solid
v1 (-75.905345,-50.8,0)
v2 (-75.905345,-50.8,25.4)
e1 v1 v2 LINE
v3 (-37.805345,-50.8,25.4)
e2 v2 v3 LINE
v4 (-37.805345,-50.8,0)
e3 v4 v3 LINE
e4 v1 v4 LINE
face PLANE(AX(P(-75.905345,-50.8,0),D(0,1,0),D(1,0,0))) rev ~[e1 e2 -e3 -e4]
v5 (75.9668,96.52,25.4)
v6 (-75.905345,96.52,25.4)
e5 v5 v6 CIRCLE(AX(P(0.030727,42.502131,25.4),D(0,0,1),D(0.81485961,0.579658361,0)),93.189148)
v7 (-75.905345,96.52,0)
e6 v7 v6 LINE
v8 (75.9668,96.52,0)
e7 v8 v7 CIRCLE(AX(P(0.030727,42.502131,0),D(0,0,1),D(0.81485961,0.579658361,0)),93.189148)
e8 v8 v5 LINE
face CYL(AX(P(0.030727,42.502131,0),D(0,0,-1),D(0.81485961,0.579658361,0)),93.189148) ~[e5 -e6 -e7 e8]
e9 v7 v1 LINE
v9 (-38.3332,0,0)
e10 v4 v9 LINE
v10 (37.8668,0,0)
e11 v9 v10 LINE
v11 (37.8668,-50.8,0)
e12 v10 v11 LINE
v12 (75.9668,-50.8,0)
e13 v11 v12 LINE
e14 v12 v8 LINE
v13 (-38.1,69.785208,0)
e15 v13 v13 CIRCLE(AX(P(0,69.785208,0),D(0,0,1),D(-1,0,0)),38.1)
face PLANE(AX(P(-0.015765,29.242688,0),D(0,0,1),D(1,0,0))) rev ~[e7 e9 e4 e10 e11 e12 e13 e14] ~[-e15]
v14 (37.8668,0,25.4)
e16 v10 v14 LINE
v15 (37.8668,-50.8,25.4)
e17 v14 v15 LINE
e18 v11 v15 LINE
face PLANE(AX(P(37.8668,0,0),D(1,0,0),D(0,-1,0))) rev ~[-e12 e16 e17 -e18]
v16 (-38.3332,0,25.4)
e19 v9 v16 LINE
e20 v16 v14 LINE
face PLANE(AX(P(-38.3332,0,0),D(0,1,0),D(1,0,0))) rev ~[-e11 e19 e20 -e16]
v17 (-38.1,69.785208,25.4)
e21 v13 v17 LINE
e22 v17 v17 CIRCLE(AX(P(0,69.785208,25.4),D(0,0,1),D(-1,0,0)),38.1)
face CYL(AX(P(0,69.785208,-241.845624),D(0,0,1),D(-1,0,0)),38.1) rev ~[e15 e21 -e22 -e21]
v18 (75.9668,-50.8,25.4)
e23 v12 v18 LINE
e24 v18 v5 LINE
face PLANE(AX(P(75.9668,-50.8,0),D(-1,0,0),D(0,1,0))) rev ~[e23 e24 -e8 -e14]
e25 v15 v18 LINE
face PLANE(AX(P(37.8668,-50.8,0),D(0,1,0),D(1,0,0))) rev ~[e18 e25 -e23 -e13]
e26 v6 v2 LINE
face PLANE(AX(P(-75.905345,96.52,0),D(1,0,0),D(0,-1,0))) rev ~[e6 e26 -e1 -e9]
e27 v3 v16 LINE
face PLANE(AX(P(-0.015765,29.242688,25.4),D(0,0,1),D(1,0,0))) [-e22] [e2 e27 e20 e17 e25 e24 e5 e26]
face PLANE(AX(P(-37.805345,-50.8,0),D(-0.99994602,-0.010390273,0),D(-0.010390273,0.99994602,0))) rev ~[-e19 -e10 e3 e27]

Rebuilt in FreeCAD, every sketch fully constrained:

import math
import FreeCAD as App
import Part
import Sketcher
from FreeCAD import Vector
Q = App.Units.Quantity

doc = App.newDocument("Part")
body = doc.addObject("PartDesign::Body", "Body")

sketch1 = body.newObject("Sketcher::SketchObject", "Sketch")
sketch1.AttachmentSupport = (doc.getObject("XY_Plane"), [""])
sketch1.MapMode = "FlatFace"
sketch1.addGeometry([
    Part.LineSegment(Vector(-38, -51, 0), Vector(-38, 0, 0)),
    Part.LineSegment(Vector(-38, 0, 0), Vector(38, 0, 0)),
    Part.LineSegment(Vector(38, 0, 0), Vector(38, -51, 0)),
    Part.LineSegment(Vector(38, -51, 0), Vector(76, -51, 0)),
    Part.LineSegment(Vector(76, -51, 0), Vector(76, 97, 0)),
    Part.ArcOfCircle(Part.Circle(Vector(0, 43, 0), Vector(0, 0, 1), 93), math.radians(35), math.radians(145)),
    Part.LineSegment(Vector(-76, 97, 0), Vector(-76, -51, 0)),
    Part.LineSegment(Vector(-76, -51, 0), Vector(-38, -51, 0)),
], False)
sketch1.addConstraint([
    Sketcher.Constraint("Coincident", 0, 2, 1, 1),
    Sketcher.Constraint("Coincident", 1, 2, 2, 1),
    Sketcher.Constraint("Coincident", 2, 2, 3, 1),
    Sketcher.Constraint("Coincident", 3, 2, 4, 1),
    Sketcher.Constraint("Coincident", 4, 2, 5, 1),
    Sketcher.Constraint("Coincident", 5, 2, 6, 1),
    Sketcher.Constraint("Coincident", 6, 2, 7, 1),
    Sketcher.Constraint("Coincident", 7, 2, 0, 1),
    Sketcher.Constraint("Horizontal", 1),
    Sketcher.Constraint("Vertical", 2),
    Sketcher.Constraint("Horizontal", 3),
    Sketcher.Constraint("Vertical", 4),
    Sketcher.Constraint("Vertical", 6),
    Sketcher.Constraint("Horizontal", 7),
    Sketcher.Constraint("PointOnObject", 0, 2, -1),
    Sketcher.Constraint("Horizontal", 4, 2, 5, 2),
    Sketcher.Constraint("Horizontal", 3, 2, 6, 2),
    Sketcher.Constraint("Equal", 3, 7),
    Sketcher.Constraint("DistanceX", 1, 1, 1, 2, Q("3 in")),
    Sketcher.Constraint("DistanceY", 2, 2, 2, 1, Q("2 in")),
    Sketcher.Constraint("DistanceX", 3, 1, 3, 2, Q("1.5 in")),
    Sketcher.Constraint("DistanceY", 4, 1, 4, 2, Q("5.8 in")),
    Sketcher.Constraint("Radius", 5, Q("93.189148 mm")),
    Sketcher.Constraint("DistanceX", 0, 2, -1, 1, Q("38.3332 mm")),
    Sketcher.Constraint("DistanceY", -1, 1, 5, 3, Q("42.502131 mm")),
])
pad1 = body.newObject("PartDesign::Pad", "Pad")
pad1.Profile = sketch1
pad1.Length = Q("1 in")

sketch2 = body.newObject("Sketcher::SketchObject", "Sketch001")
sketch2.AttachmentSupport = (doc.getObject("XY_Plane"), [""])
sketch2.MapMode = "FlatFace"
sketch2.addGeometry(Part.Circle(Vector(0, 70, 0), Vector(0, 0, 1), 38), False)
sketch2.addConstraint([
    Sketcher.Constraint("PointOnObject", 0, 3, -2),
    Sketcher.Constraint("Diameter", 0, Q("3 in")),
    Sketcher.Constraint("DistanceY", -1, 1, 0, 3, Q("69.785208 mm")),
])
doc.recompute()
hole = body.newObject("PartDesign::Hole", "Hole")
hole.Profile = sketch2
hole.ThreadType = "None"
hole.Diameter = Q("3 in")
hole.DepthType = "ThroughAll"
hole.Reversed = True

doc.recompute()
